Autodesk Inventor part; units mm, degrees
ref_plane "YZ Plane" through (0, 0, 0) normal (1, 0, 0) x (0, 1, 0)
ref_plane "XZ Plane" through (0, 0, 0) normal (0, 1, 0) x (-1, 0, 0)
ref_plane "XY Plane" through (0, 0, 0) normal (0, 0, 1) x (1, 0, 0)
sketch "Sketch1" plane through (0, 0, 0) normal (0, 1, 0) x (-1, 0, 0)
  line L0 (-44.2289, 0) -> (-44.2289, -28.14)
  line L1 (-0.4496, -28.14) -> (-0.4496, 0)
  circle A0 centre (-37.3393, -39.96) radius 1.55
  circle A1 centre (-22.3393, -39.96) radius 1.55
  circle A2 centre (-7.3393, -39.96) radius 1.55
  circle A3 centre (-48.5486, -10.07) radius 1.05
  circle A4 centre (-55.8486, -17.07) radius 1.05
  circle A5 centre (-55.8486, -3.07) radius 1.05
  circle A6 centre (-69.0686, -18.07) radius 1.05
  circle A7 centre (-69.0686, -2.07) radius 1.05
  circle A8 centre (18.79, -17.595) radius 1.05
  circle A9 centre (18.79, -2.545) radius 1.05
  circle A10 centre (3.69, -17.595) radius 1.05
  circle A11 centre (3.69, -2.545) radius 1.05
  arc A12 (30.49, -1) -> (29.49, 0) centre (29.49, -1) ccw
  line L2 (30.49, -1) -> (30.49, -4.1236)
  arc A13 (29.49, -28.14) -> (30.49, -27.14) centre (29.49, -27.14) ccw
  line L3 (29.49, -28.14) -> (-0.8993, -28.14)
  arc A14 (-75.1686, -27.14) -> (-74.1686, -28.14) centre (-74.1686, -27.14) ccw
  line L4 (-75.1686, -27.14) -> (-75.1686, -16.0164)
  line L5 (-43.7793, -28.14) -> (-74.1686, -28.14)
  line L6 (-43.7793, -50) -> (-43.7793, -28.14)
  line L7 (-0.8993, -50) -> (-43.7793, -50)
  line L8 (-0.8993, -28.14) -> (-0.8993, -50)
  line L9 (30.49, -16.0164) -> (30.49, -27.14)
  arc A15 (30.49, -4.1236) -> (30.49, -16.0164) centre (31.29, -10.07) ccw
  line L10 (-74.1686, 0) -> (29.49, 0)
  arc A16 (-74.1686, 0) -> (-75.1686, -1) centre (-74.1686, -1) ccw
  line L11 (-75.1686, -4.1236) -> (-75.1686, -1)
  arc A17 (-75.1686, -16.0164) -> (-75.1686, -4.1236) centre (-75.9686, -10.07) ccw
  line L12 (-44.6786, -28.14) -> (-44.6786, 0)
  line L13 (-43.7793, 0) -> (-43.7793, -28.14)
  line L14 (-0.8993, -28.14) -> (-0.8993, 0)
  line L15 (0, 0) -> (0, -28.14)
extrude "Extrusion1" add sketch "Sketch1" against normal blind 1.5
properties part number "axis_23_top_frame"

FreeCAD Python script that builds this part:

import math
import FreeCAD as App
import Part
import Sketcher

V = App.Vector
Q = App.Units.Quantity

doc = App.newDocument("Part")
body = doc.addObject("PartDesign::Body", "Body")

# Sketch on XZ plane
sketch1 = doc.addObject("Sketcher::SketchObject", "Sketch")
body.addObject(sketch1)
sketch1.AttachmentSupport = (doc.XZ_Plane, [""])
sketch1.MapMode = "FlatFace"
sketch1.addGeometry([
    Part.ArcOfCircle(Part.Circle(V(74.2, -1, 0), V(0, 0, 1), 1), math.radians(0), math.radians(90)),  # 0
    Part.LineSegment(V(75.2, -1, 0), V(75.2, -4.1, 0)),  # 1
    Part.ArcOfCircle(Part.Circle(V(76, -10.1, 0), V(0, 0, 1), 6), math.radians(98), math.radians(262)),  # 2
    Part.LineSegment(V(75.2, -16, 0), V(75.2, -27.1, 0)),  # 3
    Part.ArcOfCircle(Part.Circle(V(74.2, -27.1, 0), V(0, 0, 1), 1), math.radians(-90), math.radians(0)),  # 4
    Part.LineSegment(V(74.2, -28.1, 0), V(43.8, -28.1, 0)),  # 5
    Part.LineSegment(V(43.8, -28.1, 0), V(43.8, -50, 0)),  # 6
    Part.LineSegment(V(43.8, -50, 0), V(0.9, -50, 0)),  # 7
    Part.LineSegment(V(0.9, -50, 0), V(0.9, -28.1, 0)),  # 8
    Part.LineSegment(V(0.9, -28.1, 0), V(-29.5, -28.1, 0)),  # 9
    Part.ArcOfCircle(Part.Circle(V(-29.5, -27.1, 0), V(0, 0, 1), 1), math.radians(180), math.radians(270)),  # 10
    Part.LineSegment(V(-30.5, -27.1, 0), V(-30.5, -16, 0)),  # 11
    Part.ArcOfCircle(Part.Circle(V(-31.3, -10.1, 0), V(0, 0, 1), 6), math.radians(-82), math.radians(82)),  # 12
    Part.LineSegment(V(-30.5, -4.1, 0), V(-30.5, -1, 0)),  # 13
    Part.ArcOfCircle(Part.Circle(V(-29.5, -1, 0), V(0, 0, 1), 1), math.radians(90), math.radians(180)),  # 14
    Part.LineSegment(V(-29.5, 0, 0), V(74.2, 0, 0)),  # 15
    Part.Circle(V(7.3, -40, 0), V(0, 0, 1), 1.6),  # 16
    Part.Circle(V(37.3, -40, 0), V(0, 0, 1), 1.6),  # 17
    Part.Circle(V(22.3, -40, 0), V(0, 0, 1), 1.6),  # 18
    Part.Circle(V(48.5, -10.1, 0), V(0, 0, 1), 1.1),  # 19
    Part.Circle(V(69.1, -18.1, 0), V(0, 0, 1), 1.1),  # 20
    Part.Circle(V(55.8, -17.1, 0), V(0, 0, 1), 1.1),  # 21
    Part.Circle(V(69.1, -2.1, 0), V(0, 0, 1), 1.1),  # 22
    Part.Circle(V(55.8, -3.1, 0), V(0, 0, 1), 1.1),  # 23
    Part.Circle(V(-18.8, -2.5, 0), V(0, 0, 1), 1.1),  # 24
    Part.Circle(V(-3.7, -17.6, 0), V(0, 0, 1), 1.1),  # 25
    Part.Circle(V(-18.8, -17.6, 0), V(0, 0, 1), 1.1),  # 26
    Part.Circle(V(-3.7, -2.5, 0), V(0, 0, 1), 1.1),  # 27
], False)
sketch1.addConstraint([
    Sketcher.Constraint("Tangent", 0, 1, 1, 1),
    Sketcher.Constraint("Coincident", 1, 2, 2, 1),
    Sketcher.Constraint("Coincident", 2, 2, 3, 1),
    Sketcher.Constraint("Tangent", 3, 2, 4, 2),
    Sketcher.Constraint("Tangent", 4, 1, 5, 1),
    Sketcher.Constraint("Coincident", 5, 2, 6, 1),
    Sketcher.Constraint("Coincident", 6, 2, 7, 1),
    Sketcher.Constraint("Coincident", 7, 2, 8, 1),
    Sketcher.Constraint("Coincident", 8, 2, 9, 1),
    Sketcher.Constraint("Tangent", 9, 2, 10, 2),
    Sketcher.Constraint("Tangent", 10, 1, 11, 1),
    Sketcher.Constraint("Coincident", 11, 2, 12, 1),
    Sketcher.Constraint("Coincident", 12, 2, 13, 1),
    Sketcher.Constraint("Tangent", 13, 2, 14, 2),
    Sketcher.Constraint("Tangent", 14, 1, 15, 1),
    Sketcher.Constraint("Tangent", 15, 2, 0, 2),
    Sketcher.Constraint("Vertical", 1),
    Sketcher.Constraint("Vertical", 3),
    Sketcher.Constraint("Horizontal", 5),
    Sketcher.Constraint("Vertical", 6),
    Sketcher.Constraint("Horizontal", 7),
    Sketcher.Constraint("Vertical", 8),
    Sketcher.Constraint("Horizontal", 9),
    Sketcher.Constraint("Vertical", 11),
    Sketcher.Constraint("Vertical", 13),
    Sketcher.Constraint("Horizontal", 15),
    Sketcher.Constraint("Equal", 0, 4),
    Sketcher.Constraint("Equal", 4, 10),
    Sketcher.Constraint("Equal", 2, 12),
    Sketcher.Constraint("Equal", 10, 14),
    Sketcher.Constraint("Equal", 16, 17),
    Sketcher.Constraint("Equal", 17, 18),
    Sketcher.Constraint("Equal", 19, 20),
    Sketcher.Constraint("Equal", 20, 21),
    Sketcher.Constraint("Equal", 21, 22),
    Sketcher.Constraint("Equal", 22, 23),
    Sketcher.Constraint("Equal", 23, 24),
    Sketcher.Constraint("Equal", 24, 25),
    Sketcher.Constraint("Equal", 25, 26),
    Sketcher.Constraint("Equal", 26, 27),
    Sketcher.Constraint("PointOnObject", 14, 1, -1),
    Sketcher.Constraint("Horizontal", 4, 3, 10, 3),
    Sketcher.Constraint("Horizontal", 2, 3, 12, 3),
    Sketcher.Constraint("Horizontal", 16, 3, 17, 3),
    Sketcher.Constraint("Horizontal", 17, 3, 18, 3),
    Sketcher.Constraint("Horizontal", 12, 3, 19, 3),
    Sketcher.Constraint("Horizontal", 25, 3, 26, 3),
    Sketcher.Constraint("Horizontal", 24, 3, 27, 3),
    Sketcher.Constraint("Horizontal", 2, 2, 11, 2),
    Sketcher.Constraint("Horizontal", 1, 2, 12, 2),
    Sketcher.Constraint("Vertical", 0, 3, 4, 3),
    Sketcher.Constraint("Vertical", 20, 3, 22, 3),
    Sketcher.Constraint("Vertical", 21, 3, 23, 3),
    Sketcher.Constraint("Vertical", 24, 3, 26, 3),
    Sketcher.Constraint("Vertical", 25, 3, 27, 3),
    Sketcher.Constraint("Equal", 5, 9),
    Sketcher.Constraint("Radius", 0, Q("1 mm")),
    Sketcher.Constraint("Radius", 2, Q("6 mm")),
    Sketcher.Constraint("Diameter", 16, Q("3.1 mm")),
    Sketcher.Constraint("Diameter", 19, Q("2.1 mm")),
    Sketcher.Constraint("DistanceY", 6, 2, -1, 1, Q("50 mm")),
    Sketcher.Constraint("DistanceX", 16, 3, 17, 3, Q("30 mm")),
    Sketcher.Constraint("DistanceX", 18, 3, 17, 3, Q("15 mm")),
    Sketcher.Constraint("DistanceY", 20, 3, 2, 3, Q("8 mm")),
    Sketcher.Constraint("DistanceY", 21, 3, 19, 3, Q("7 mm")),
    Sketcher.Constraint("DistanceY", 2, 3, 22, 3, Q("8 mm")),
    Sketcher.Constraint("DistanceY", 19, 3, 23, 3, Q("7 mm")),
    Sketcher.Constraint("DistanceX", 7, 2, 7, 1, Q("42.88 mm")),
    Sketcher.Constraint("DistanceY", 6, 2, 6, 1, Q("21.86 mm")),
    Sketcher.Constraint("DistanceX", 0, 3, 2, 3, Q("1.8 mm")),
    Sketcher.Constraint("DistanceX", 20, 3, 4, 3, Q("5.1 mm")),
    Sketcher.Constraint("DistanceX", 19, 3, 21, 3, Q("7.3 mm")),
    Sketcher.Constraint("DistanceX", 14, 3, 24, 3, Q("10.7 mm")),
    Sketcher.Constraint("DistanceX", 24, 3, 25, 3, Q("15.1 mm")),
    Sketcher.Constraint("DistanceY", 2, 3, -1, 1, Q("10.07 mm")),
    Sketcher.Constraint("DistanceX", 10, 3, -1, 1, Q("29.49 mm")),
    Sketcher.Constraint("DistanceY", 16, 3, -1, 1, Q("39.96 mm")),
    Sketcher.Constraint("DistanceX", 19, 3, 0, 3, Q("25.62 mm")),
    Sketcher.Constraint("DistanceY", 25, 3, 24, 3, Q("15.05 mm")),
    Sketcher.Constraint("DistanceX", 17, 3, 5, 2, Q("6.44 mm")),
    Sketcher.Constraint("DistanceX", 5, 2, 5, 1, Q("30.3893 mm")),
    Sketcher.Constraint("DistanceY", 24, 3, -1, 1, Q("2.545 mm")),
])
pad1 = doc.addObject("PartDesign::Pad", "Pad")
body.addObject(pad1)
pad1.Profile = sketch1
pad1.Length = 1.5

doc.recompute()
